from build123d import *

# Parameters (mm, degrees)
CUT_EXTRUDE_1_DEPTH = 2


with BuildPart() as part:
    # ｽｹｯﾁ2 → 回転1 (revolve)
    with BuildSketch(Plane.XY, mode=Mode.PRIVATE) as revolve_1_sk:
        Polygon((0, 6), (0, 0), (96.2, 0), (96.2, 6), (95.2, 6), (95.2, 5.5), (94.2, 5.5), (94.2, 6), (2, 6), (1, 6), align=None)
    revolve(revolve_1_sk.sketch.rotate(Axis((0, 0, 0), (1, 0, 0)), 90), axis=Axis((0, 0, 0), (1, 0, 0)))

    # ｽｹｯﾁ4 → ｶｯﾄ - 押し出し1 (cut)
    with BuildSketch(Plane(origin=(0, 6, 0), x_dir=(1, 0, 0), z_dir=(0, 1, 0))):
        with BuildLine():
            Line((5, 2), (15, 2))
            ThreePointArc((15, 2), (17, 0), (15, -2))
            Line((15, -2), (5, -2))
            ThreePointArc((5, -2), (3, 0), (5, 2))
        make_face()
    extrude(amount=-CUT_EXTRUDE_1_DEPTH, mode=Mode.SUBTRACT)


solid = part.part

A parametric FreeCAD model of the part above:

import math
import FreeCAD as App
import Part
import Sketcher
Q = App.Units.Quantity

doc = App.newDocument("Part")
body = doc.addObject("PartDesign::Body", "Body")

sketch1 = body.newObject("Sketcher::SketchObject", "Sketch")
sketch1.AttachmentSupport = (doc.getObject("XY_Plane"), [""])
sketch1.MapMode = "FlatFace"
sketch1.addGeometry([
    Part.LineSegment(App.Vector(0, 6, 0), App.Vector(0, 0, 0)),
    Part.LineSegment(App.Vector(0, 0, 0), App.Vector(96.2, 0, 0)),
    Part.LineSegment(App.Vector(96.2, 0, 0), App.Vector(96.2, 6, 0)),
    Part.LineSegment(App.Vector(96.2, 6, 0), App.Vector(95.2, 6, 0)),
    Part.LineSegment(App.Vector(95.2, 6, 0), App.Vector(95.2, 5.5, 0)),
    Part.LineSegment(App.Vector(95.2, 5.5, 0), App.Vector(94.2, 5.5, 0)),
    Part.LineSegment(App.Vector(94.2, 5.5, 0), App.Vector(94.2, 6, 0)),
    Part.LineSegment(App.Vector(94.2, 6, 0), App.Vector(0, 6, 0)),
], False)
sketch1.addConstraint([
    Sketcher.Constraint("Coincident", 0, 2, 1, 1),
    Sketcher.Constraint("Coincident", 1, 2, 2, 1),
    Sketcher.Constraint("Coincident", 2, 2, 3, 1),
    Sketcher.Constraint("Coincident", 3, 2, 4, 1),
    Sketcher.Constraint("Coincident", 4, 2, 5, 1),
    Sketcher.Constraint("Coincident", 5, 2, 6, 1),
    Sketcher.Constraint("Coincident", 6, 2, 7, 1),
    Sketcher.Constraint("Coincident", 7, 2, 0, 1),
    Sketcher.Constraint("Vertical", 0),
    Sketcher.Constraint("Horizontal", 1),
    Sketcher.Constraint("Vertical", 2),
    Sketcher.Constraint("Horizontal", 3),
    Sketcher.Constraint("Vertical", 4),
    Sketcher.Constraint("Horizontal", 5),
    Sketcher.Constraint("Vertical", 6),
    Sketcher.Constraint("Horizontal", 7),
    Sketcher.Constraint("Coincident", 0, 2, -1, 1),
    Sketcher.Constraint("Horizontal", 3, 2, 6, 2),
    Sketcher.Constraint("Equal", 3, 5),
    Sketcher.Constraint("DistanceX", 3, 2, 3, 1, Q("1 mm")),
    Sketcher.Constraint("DistanceY", 0, 2, 0, 1, Q("6 mm")),
    Sketcher.Constraint("DistanceX", 1, 1, 1, 2, Q("96.2 mm")),
    Sketcher.Constraint("DistanceY", 4, 2, 4, 1, Q("0.5 mm")),
])
revolution = body.newObject("PartDesign::Revolution", "Revolution")
revolution.Profile = sketch1
revolution.ReferenceAxis = (sketch1, ["H_Axis"])
revolution.Angle = 360

sketch2 = body.newObject("Sketcher::SketchObject", "Sketch001")
sketch2.AttachmentSupport = (doc.getObject("XZ_Plane"), [""])
sketch2.MapMode = "FlatFace"
sketch2.AttachmentOffset = App.Placement(App.Vector(0, 0, -6), App.Rotation())
sketch2.addGeometry([
    Part.LineSegment(App.Vector(15, -2, 0), App.Vector(5, -2, 0)),
    Part.ArcOfCircle(Part.Circle(App.Vector(5, 0, 0), App.Vector(0, 0, 1), 2), math.radians(90), math.radians(270)),
    Part.LineSegment(App.Vector(5, 2, 0), App.Vector(15, 2, 0)),
    Part.ArcOfCircle(Part.Circle(App.Vector(15, 0, 0), App.Vector(0, 0, 1), 2), math.radians(-90), math.radians(90)),
], False)
sketch2.addConstraint([
    Sketcher.Constraint("Tangent", 0, 2, 1, 2),
    Sketcher.Constraint("Tangent", 1, 1, 2, 1),
    Sketcher.Constraint("Tangent", 2, 2, 3, 2),
    Sketcher.Constraint("Tangent", 3, 1, 0, 1),
    Sketcher.Constraint("Horizontal", 0),
    Sketcher.Constraint("Horizontal", 2),
    Sketcher.Constraint("PointOnObject", 1, 3, -1),
    Sketcher.Constraint("Radius", 1, Q("2 mm")),
    Sketcher.Constraint("DistanceX", 0, 2, 0, 1, Q("10 mm")),
    Sketcher.Constraint("DistanceX", -1, 1, 1, 3, Q("5 mm")),
])
pocket1 = body.newObject("PartDesign::Pocket", "Pocket")
pocket1.Profile = sketch2
pocket1.Length = 2
pocket1.Reversed = True

doc.recompute()
